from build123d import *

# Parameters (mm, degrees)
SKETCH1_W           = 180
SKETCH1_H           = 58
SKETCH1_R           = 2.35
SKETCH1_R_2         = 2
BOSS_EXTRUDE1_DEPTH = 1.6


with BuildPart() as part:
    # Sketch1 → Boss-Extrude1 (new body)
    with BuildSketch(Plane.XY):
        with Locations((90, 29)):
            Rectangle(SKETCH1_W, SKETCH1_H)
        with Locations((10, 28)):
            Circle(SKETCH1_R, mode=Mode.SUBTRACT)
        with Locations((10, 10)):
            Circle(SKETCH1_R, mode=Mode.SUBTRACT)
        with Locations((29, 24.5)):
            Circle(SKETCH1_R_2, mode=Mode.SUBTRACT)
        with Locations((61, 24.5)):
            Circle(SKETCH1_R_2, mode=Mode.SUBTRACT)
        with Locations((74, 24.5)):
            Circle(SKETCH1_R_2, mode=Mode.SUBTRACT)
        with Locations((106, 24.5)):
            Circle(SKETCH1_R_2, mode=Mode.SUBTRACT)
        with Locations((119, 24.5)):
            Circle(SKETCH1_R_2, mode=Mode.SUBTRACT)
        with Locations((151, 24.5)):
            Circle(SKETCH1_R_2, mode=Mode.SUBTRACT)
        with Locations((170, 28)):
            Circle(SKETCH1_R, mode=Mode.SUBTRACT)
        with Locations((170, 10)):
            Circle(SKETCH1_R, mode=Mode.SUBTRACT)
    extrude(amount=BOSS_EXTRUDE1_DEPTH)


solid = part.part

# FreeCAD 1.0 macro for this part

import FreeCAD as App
import Part
import Sketcher

doc = App.newDocument("Part")
params = doc.addObject("Spreadsheet::Sheet", "Params")
for row, (alias, value) in enumerate([
    ("sketch1_diameter", "4 mm"),
    ("sketch1_diameter2", "4.7 mm"),
    ("sketch1_width", "180 mm"),
    ("sketch1_height", "58 mm"),
    ("pad1_length", "1.6 mm"),
], start=1):
    params.set(f"A{row}", alias)
    params.set(f"B{row}", "=" + value)
    params.setAlias(f"B{row}", alias)

body = doc.addObject("PartDesign::Body", "Body")

# Sketch on XY plane
sketch1 = body.newObject("Sketcher::SketchObject", "Sketch")
sketch1.AttachmentSupport = (doc.getObject("XY_Plane"), [""])
sketch1.MapMode = "FlatFace"
sketch1.addGeometry([
    Part.LineSegment(App.Vector(0, 58, 0), App.Vector(0, 0, 0)),  # 0
    Part.LineSegment(App.Vector(0, 0, 0), App.Vector(180, 0, 0)),  # 1
    Part.LineSegment(App.Vector(180, 0, 0), App.Vector(180, 58, 0)),  # 2
    Part.LineSegment(App.Vector(180, 58, 0), App.Vector(0, 58, 0)),  # 3
    Part.Circle(App.Vector(10, 10, 0), App.Vector(0, 0, 1), 2.35),  # 4
    Part.Circle(App.Vector(170, 10, 0), App.Vector(0, 0, 1), 2.35),  # 5
    Part.Circle(App.Vector(29, 24.5, 0), App.Vector(0, 0, 1), 2),  # 6
    Part.Circle(App.Vector(61, 24.5, 0), App.Vector(0, 0, 1), 2),  # 7
    Part.Circle(App.Vector(74, 24.5, 0), App.Vector(0, 0, 1), 2),  # 8
    Part.Circle(App.Vector(10, 28, 0), App.Vector(0, 0, 1), 2.35),  # 9
    Part.Circle(App.Vector(106, 24.5, 0), App.Vector(0, 0, 1), 2),  # 10
    Part.Circle(App.Vector(119, 24.5, 0), App.Vector(0, 0, 1), 2),  # 11
    Part.Circle(App.Vector(151, 24.5, 0), App.Vector(0, 0, 1), 2),  # 12
    Part.Circle(App.Vector(170, 28, 0), App.Vector(0, 0, 1), 2.35),  # 13
], False)
sketch1.addConstraint([
    Sketcher.Constraint("Coincident", 0, 2, 1, 1),
    Sketcher.Constraint("Coincident", 1, 2, 2, 1),
    Sketcher.Constraint("Coincident", 2, 2, 3, 1),
    Sketcher.Constraint("Coincident", 3, 2, 0, 1),
    Sketcher.Constraint("Vertical", 0),
    Sketcher.Constraint("Horizontal", 1),
    Sketcher.Constraint("Vertical", 2),
    Sketcher.Constraint("Horizontal", 3),
    Sketcher.Constraint("Coincident", 0, 2, -1, 1),
    Sketcher.Constraint("Equal", 4, 5),
    Sketcher.Constraint("Equal", 6, 7),
    Sketcher.Constraint("Equal", 7, 8),
    Sketcher.Constraint("Equal", 5, 9),
    Sketcher.Constraint("Equal", 8, 10),
    Sketcher.Constraint("Equal", 10, 11),
    Sketcher.Constraint("Equal", 11, 12),
    Sketcher.Constraint("Equal", 9, 13),
    Sketcher.Constraint("Horizontal", 4, 3, 5, 3),
    Sketcher.Constraint("Horizontal", 6, 3, 7, 3),
    Sketcher.Constraint("Horizontal", 7, 3, 8, 3),
    Sketcher.Constraint("Horizontal", 8, 3, 10, 3),
    Sketcher.Constraint("Horizontal", 10, 3, 11, 3),
    Sketcher.Constraint("Horizontal", 11, 3, 12, 3),
    Sketcher.Constraint("Horizontal", 9, 3, 13, 3),
    Sketcher.Constraint("Vertical", 4, 3, 9, 3),
    Sketcher.Constraint("Vertical", 5, 3, 13, 3),
    Sketcher.Constraint("Diameter", 6, 4.0),
    Sketcher.Constraint("Diameter", 4, 4.7),
    Sketcher.Constraint("DistanceX", 1, 1, 1, 2, 180.0),
    Sketcher.Constraint("DistanceY", 0, 2, 0, 1, 58.0),
    Sketcher.Constraint("DistanceX", -1, 1, 4, 3, 10.0),
    Sketcher.Constraint("DistanceY", -1, 1, 4, 3, 10.0),
    Sketcher.Constraint("DistanceX", -1, 1, 5, 3, 170.0),
    Sketcher.Constraint("DistanceX", -1, 1, 6, 3, 29.0),
    Sketcher.Constraint("DistanceX", -1, 1, 7, 3, 61.0),
    Sketcher.Constraint("DistanceX", -1, 1, 8, 3, 74.0),
    Sketcher.Constraint("DistanceY", -1, 1, 9, 3, 28.0),
    Sketcher.Constraint("DistanceX", -1, 1, 10, 3, 106.0),
    Sketcher.Constraint("DistanceX", -1, 1, 11, 3, 119.0),
    Sketcher.Constraint("DistanceX", -1, 1, 12, 3, 151.0),
    Sketcher.Constraint("DistanceY", -1, 1, 6, 3, 24.5),
])
sketch1.setExpression("Constraints[26]", "Params.sketch1_diameter")
sketch1.setExpression("Constraints[27]", "Params.sketch1_diameter2")
sketch1.setExpression("Constraints[28]", "Params.sketch1_width")
sketch1.setExpression("Constraints[29]", "Params.sketch1_height")
pad1 = body.newObject("PartDesign::Pad", "Pad")
pad1.Profile = sketch1
pad1.setExpression("Length", "Params.pad1_length")

doc.recompute()
